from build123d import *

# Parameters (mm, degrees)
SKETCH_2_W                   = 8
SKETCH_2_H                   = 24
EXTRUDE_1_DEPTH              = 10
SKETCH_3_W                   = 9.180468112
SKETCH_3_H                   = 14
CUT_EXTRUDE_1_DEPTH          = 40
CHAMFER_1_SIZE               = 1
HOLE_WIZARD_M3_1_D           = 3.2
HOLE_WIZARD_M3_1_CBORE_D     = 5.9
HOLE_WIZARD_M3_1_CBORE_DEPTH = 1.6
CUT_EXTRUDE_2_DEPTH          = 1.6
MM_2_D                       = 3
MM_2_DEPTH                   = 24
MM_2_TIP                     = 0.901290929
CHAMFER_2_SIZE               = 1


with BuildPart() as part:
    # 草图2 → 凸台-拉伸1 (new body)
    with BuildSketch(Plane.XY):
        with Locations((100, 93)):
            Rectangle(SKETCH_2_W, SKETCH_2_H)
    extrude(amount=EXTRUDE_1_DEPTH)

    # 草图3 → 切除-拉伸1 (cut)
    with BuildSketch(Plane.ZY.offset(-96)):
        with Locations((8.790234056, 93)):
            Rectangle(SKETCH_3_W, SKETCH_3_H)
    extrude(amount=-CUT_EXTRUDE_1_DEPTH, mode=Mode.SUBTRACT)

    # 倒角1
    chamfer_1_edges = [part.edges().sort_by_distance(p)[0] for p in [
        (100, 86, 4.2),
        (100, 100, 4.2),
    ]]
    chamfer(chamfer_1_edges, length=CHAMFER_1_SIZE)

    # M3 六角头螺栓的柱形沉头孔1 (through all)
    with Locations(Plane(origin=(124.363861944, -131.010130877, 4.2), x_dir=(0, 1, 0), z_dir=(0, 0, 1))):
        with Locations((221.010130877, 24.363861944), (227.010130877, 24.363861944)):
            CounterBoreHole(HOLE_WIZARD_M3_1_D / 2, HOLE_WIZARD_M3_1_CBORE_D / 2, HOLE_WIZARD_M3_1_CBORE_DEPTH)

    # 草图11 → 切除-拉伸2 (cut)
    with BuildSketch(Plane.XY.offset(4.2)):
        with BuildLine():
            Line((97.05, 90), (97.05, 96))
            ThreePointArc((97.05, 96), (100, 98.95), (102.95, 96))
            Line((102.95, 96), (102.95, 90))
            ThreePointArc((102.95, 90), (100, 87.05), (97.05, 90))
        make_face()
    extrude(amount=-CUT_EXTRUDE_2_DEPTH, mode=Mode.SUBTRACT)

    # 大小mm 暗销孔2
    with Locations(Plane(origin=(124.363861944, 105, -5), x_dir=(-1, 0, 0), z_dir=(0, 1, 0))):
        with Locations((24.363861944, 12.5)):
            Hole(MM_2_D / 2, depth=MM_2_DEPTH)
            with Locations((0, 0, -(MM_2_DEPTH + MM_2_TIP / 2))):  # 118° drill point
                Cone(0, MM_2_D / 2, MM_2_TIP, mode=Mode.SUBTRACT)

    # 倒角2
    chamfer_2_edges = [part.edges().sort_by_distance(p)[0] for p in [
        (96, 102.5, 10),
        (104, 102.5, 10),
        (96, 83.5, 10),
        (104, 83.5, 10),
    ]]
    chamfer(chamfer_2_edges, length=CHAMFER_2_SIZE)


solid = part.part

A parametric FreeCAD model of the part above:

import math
import FreeCAD as App
import Part
import Sketcher
Q = App.Units.Quantity


def edges_at(feature, points):
    """Names of the edges that pass closest to the given points."""
    edges = feature.Shape.Edges
    near = lambda p: min(range(len(edges)), key=lambda i: edges[i].distToShape(Part.Vertex(*p))[0])
    return sorted({f"Edge{near(p) + 1}" for p in points})

doc = App.newDocument("Part")
params = doc.addObject("Spreadsheet::Sheet", "Params")
for row, (alias, value) in enumerate([
    ("sketch1_width", "8 mm"),
    ("sketch1_height", "24 mm"),
    ("pad1_length", "10 mm"),
    ("sketch2_width", "14 mm"),
    ("pocket1_length", "40 mm"),
    ("chamfer_size", "1 mm"),
    ("sketch3_diameter", "3.2 mm"),
    ("hole_diameter", "3.2 mm"),
    ("hole_cbore_diameter", "5.9 mm"),
    ("hole_cbore_depth", "1.6 mm"),
    ("sketch4_height", "6 mm"),
    ("sketch4_radius", "2.95 mm"),
    ("pocket2_length", "1.6 mm"),
    ("sketch5_diameter", "3 mm"),
    ("hole2_diameter", "3 mm"),
    ("hole2_depth", "24 mm"),
    ("chamfer2_size", "1 mm"),
], start=1):
    params.set(f"A{row}", alias)
    params.set(f"B{row}", "=" + value)
    params.setAlias(f"B{row}", alias)

body = doc.addObject("PartDesign::Body", "Body")

sketch1 = doc.addObject("Sketcher::SketchObject", "Sketch")
body.addObject(sketch1)
sketch1.AttachmentSupport = (doc.XY_Plane, [""])
sketch1.MapMode = "FlatFace"
sketch1.addGeometry(Part.LineSegment(App.Vector(96, 105, 0), App.Vector(96, 81, 0)), False)
sketch1.addGeometry(Part.LineSegment(App.Vector(96, 81, 0), App.Vector(104, 81, 0)), False)
sketch1.addGeometry(Part.LineSegment(App.Vector(104, 81, 0), App.Vector(104, 105, 0)), False)
sketch1.addGeometry(Part.LineSegment(App.Vector(104, 105, 0), App.Vector(96, 105, 0)), False)
sketch1.addConstraint(Sketcher.Constraint("Coincident", 0, 2, 1, 1))
sketch1.addConstraint(Sketcher.Constraint("Coincident", 1, 2, 2, 1))
sketch1.addConstraint(Sketcher.Constraint("Coincident", 2, 2, 3, 1))
sketch1.addConstraint(Sketcher.Constraint("Coincident", 3, 2, 0, 1))
sketch1.addConstraint(Sketcher.Constraint("Vertical", 0))
sketch1.addConstraint(Sketcher.Constraint("Horizontal", 1))
sketch1.addConstraint(Sketcher.Constraint("Vertical", 2))
sketch1.addConstraint(Sketcher.Constraint("Horizontal", 3))
sketch1.addConstraint(Sketcher.Constraint("DistanceX", 1, 1, 1, 2, Q("8 mm")))
sketch1.addConstraint(Sketcher.Constraint("DistanceY", 0, 2, 0, 1, Q("24 mm")))
sketch1.addConstraint(Sketcher.Constraint("DistanceX", -1, 1, 0, 2, Q("96 mm")))
sketch1.addConstraint(Sketcher.Constraint("DistanceY", -1, 1, 0, 2, Q("81 mm")))
sketch1.setExpression("Constraints[8]", "Params.sketch1_width")
sketch1.setExpression("Constraints[9]", "Params.sketch1_height")
pad1 = doc.addObject("PartDesign::Pad", "Pad")
body.addObject(pad1)
pad1.Profile = sketch1
pad1.setExpression("Length", "Params.pad1_length")

sketch2 = doc.addObject("Sketcher::SketchObject", "Sketch001")
body.addObject(sketch2)
sketch2.AttachmentSupport = (doc.YZ_Plane, [""])
sketch2.MapMode = "FlatFace"
sketch2.AttachmentOffset = App.Placement(App.Vector(0, 0, 96), App.Rotation())
sketch2.addGeometry(Part.LineSegment(App.Vector(100, 4, 0), App.Vector(86, 4, 0)), False)
sketch2.addGeometry(Part.LineSegment(App.Vector(86, 4, 0), App.Vector(86, 13, 0)), False)
sketch2.addGeometry(Part.LineSegment(App.Vector(86, 13, 0), App.Vector(100, 13, 0)), False)
sketch2.addGeometry(Part.LineSegment(App.Vector(100, 13, 0), App.Vector(100, 4, 0)), False)
sketch2.addConstraint(Sketcher.Constraint("Coincident", 0, 2, 1, 1))
sketch2.addConstraint(Sketcher.Constraint("Coincident", 1, 2, 2, 1))
sketch2.addConstraint(Sketcher.Constraint("Coincident", 2, 2, 3, 1))
sketch2.addConstraint(Sketcher.Constraint("Coincident", 3, 2, 0, 1))
sketch2.addConstraint(Sketcher.Constraint("Horizontal", 0))
sketch2.addConstraint(Sketcher.Constraint("Vertical", 1))
sketch2.addConstraint(Sketcher.Constraint("Horizontal", 2))
sketch2.addConstraint(Sketcher.Constraint("Vertical", 3))
sketch2.addConstraint(Sketcher.Constraint("DistanceX", 0, 2, 0, 1, Q("14 mm")))
sketch2.addConstraint(Sketcher.Constraint("DistanceX", -1, 1, 0, 2, Q("86 mm")))
sketch2.addConstraint(Sketcher.Constraint("DistanceY", -1, 1, 0, 2, Q("4.2 mm")))
sketch2.addConstraint(Sketcher.Constraint("DistanceY", 1, 1, 1, 2, Q("9.180468 mm")))
sketch2.setExpression("Constraints[8]", "Params.sketch2_width")
pocket1 = doc.addObject("PartDesign::Pocket", "Pocket")
body.addObject(pocket1)
pocket1.Profile = sketch2
pocket1.setExpression("Length", "Params.pocket1_length")
pocket1.Reversed = True
doc.recompute()

chamfer = doc.addObject("PartDesign::Chamfer", "Chamfer")
body.addObject(chamfer)
chamfer.Base = (pocket1, edges_at(pocket1, [(100, 86, 4.2), (100, 100, 4.2)]))
chamfer.setExpression("Size", "Params.chamfer_size")

sketch3 = doc.addObject("Sketcher::SketchObject", "Sketch002")
body.addObject(sketch3)
sketch3.AttachmentSupport = (doc.XY_Plane, [""])
sketch3.MapMode = "FlatFace"
sketch3.AttachmentOffset = App.Placement(App.Vector(0, 0, 4.2), App.Rotation())
sketch3.addGeometry(Part.Circle(App.Vector(100, 90, 0), App.Vector(0, 0, 1), 1.6), False)
sketch3.addGeometry(Part.Circle(App.Vector(100, 96, 0), App.Vector(0, 0, 1), 1.6), False)
sketch3.addConstraint(Sketcher.Constraint("Equal", 0, 1))
sketch3.addConstraint(Sketcher.Constraint("Vertical", 0, 3, 1, 3))
sketch3.addConstraint(Sketcher.Constraint("Diameter", 0, Q("3.2 mm")))
sketch3.addConstraint(Sketcher.Constraint("DistanceX", -1, 1, 0, 3, Q("100 mm")))
sketch3.addConstraint(Sketcher.Constraint("DistanceY", -1, 1, 0, 3, Q("90 mm")))
sketch3.addConstraint(Sketcher.Constraint("DistanceY", -1, 1, 1, 3, Q("96 mm")))
sketch3.setExpression("Constraints[2]", "Params.sketch3_diameter")
doc.recompute()
hole = doc.addObject("PartDesign::Hole", "Hole")
body.addObject(hole)
hole.Profile = sketch3
hole.ThreadType = "None"
hole.setExpression("Diameter", "Params.hole_diameter")
hole.DepthType = "ThroughAll"
hole.HoleCutType = "Counterbore"
hole.setExpression("HoleCutDiameter", "Params.hole_cbore_diameter")
hole.setExpression("HoleCutDepth", "Params.hole_cbore_depth")

sketch4 = doc.addObject("Sketcher::SketchObject", "Sketch003")
body.addObject(sketch4)
sketch4.AttachmentSupport = (doc.XY_Plane, [""])
sketch4.MapMode = "FlatFace"
sketch4.AttachmentOffset = App.Placement(App.Vector(0, 0, 4.2), App.Rotation())
sketch4.addGeometry(Part.LineSegment(App.Vector(97, 96, 0), App.Vector(97, 90, 0)), False)
sketch4.addGeometry(Part.ArcOfCircle(Part.Circle(App.Vector(100, 90, 0), App.Vector(0, 0, 1), 3), math.radians(180), math.radians(360)), False)
sketch4.addGeometry(Part.LineSegment(App.Vector(103, 90, 0), App.Vector(103, 96, 0)), False)
sketch4.addGeometry(Part.ArcOfCircle(Part.Circle(App.Vector(100, 96, 0), App.Vector(0, 0, 1), 3), math.radians(0), math.radians(180)), False)
sketch4.addConstraint(Sketcher.Constraint("Tangent", 0, 2, 1, 1))
sketch4.addConstraint(Sketcher.Constraint("Tangent", 1, 2, 2, 1))
sketch4.addConstraint(Sketcher.Constraint("Tangent", 2, 2, 3, 1))
sketch4.addConstraint(Sketcher.Constraint("Tangent", 3, 2, 0, 1))
sketch4.addConstraint(Sketcher.Constraint("Vertical", 0))
sketch4.addConstraint(Sketcher.Constraint("Vertical", 2))
sketch4.addConstraint(Sketcher.Constraint("DistanceY", 0, 2, 0, 1, Q("6 mm")))
sketch4.addConstraint(Sketcher.Constraint("Radius", 1, Q("2.95 mm")))
sketch4.addConstraint(Sketcher.Constraint("DistanceX", -1, 1, 1, 3, Q("100 mm")))
sketch4.addConstraint(Sketcher.Constraint("DistanceY", -1, 1, 1, 3, Q("90 mm")))
sketch4.setExpression("Constraints[6]", "Params.sketch4_height")
sketch4.setExpression("Constraints[7]", "Params.sketch4_radius")
pocket2 = doc.addObject("PartDesign::Pocket", "Pocket001")
body.addObject(pocket2)
pocket2.Profile = sketch4
pocket2.setExpression("Length", "Params.pocket2_length")

sketch5 = doc.addObject("Sketcher::SketchObject", "Sketch004")
body.addObject(sketch5)
sketch5.AttachmentSupport = (doc.XZ_Plane, [""])
sketch5.MapMode = "FlatFace"
sketch5.AttachmentOffset = App.Placement(App.Vector(0, 0, -105), App.Rotation())
sketch5.addGeometry(Part.Circle(App.Vector(100, 7.5, 0), App.Vector(0, 0, 1), 1.5), False)
sketch5.addConstraint(Sketcher.Constraint("Diameter", 0, Q("3 mm")))
sketch5.addConstraint(Sketcher.Constraint("DistanceX", -1, 1, 0, 3, Q("100 mm")))
sketch5.addConstraint(Sketcher.Constraint("DistanceY", -1, 1, 0, 3, Q("7.5 mm")))
sketch5.setExpression("Constraints[0]", "Params.sketch5_diameter")
doc.recompute()
hole2 = doc.addObject("PartDesign::Hole", "Hole001")
body.addObject(hole2)
hole2.Profile = sketch5
hole2.ThreadType = "None"
hole2.setExpression("Diameter", "Params.hole2_diameter")
hole2.DepthType = "Dimension"
hole2.setExpression("Depth", "Params.hole2_depth")
hole2.DrillPoint = "Angled"
hole2.DrillPointAngle = 118
hole2.Reversed = True
doc.recompute()

chamfer2 = doc.addObject("PartDesign::Chamfer", "Chamfer001")
body.addObject(chamfer2)
chamfer2.Base = (hole2, edges_at(hole2, [
    (96, 102.5, 10),
    (104, 102.5, 10),
    (96, 83.5, 10),
    (104, 83.5, 10),
]))
chamfer2.setExpression("Size", "Params.chamfer2_size")

doc.recompute()
